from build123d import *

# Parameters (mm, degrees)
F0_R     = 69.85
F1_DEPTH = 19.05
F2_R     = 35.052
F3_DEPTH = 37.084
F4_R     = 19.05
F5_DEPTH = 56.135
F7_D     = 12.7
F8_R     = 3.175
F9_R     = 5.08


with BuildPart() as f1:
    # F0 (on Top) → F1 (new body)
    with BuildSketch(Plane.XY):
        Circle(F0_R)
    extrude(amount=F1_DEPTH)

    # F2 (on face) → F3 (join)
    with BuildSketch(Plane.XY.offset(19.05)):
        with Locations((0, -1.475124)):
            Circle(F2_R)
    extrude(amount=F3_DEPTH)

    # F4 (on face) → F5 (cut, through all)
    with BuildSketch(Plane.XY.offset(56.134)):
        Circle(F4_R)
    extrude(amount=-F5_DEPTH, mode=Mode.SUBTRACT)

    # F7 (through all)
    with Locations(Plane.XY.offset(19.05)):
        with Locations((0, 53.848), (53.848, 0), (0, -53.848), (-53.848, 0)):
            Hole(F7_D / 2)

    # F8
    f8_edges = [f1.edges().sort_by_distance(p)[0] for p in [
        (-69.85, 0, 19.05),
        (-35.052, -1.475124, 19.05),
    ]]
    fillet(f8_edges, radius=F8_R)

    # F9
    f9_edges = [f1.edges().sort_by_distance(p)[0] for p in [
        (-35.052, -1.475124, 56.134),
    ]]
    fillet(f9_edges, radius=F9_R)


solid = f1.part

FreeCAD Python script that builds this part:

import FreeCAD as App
import Part
import Sketcher
Q = App.Units.Quantity


def edges_at(feature, points):
    """Names of the edges that pass closest to the given points."""
    edges = feature.Shape.Edges
    near = lambda p: min(range(len(edges)), key=lambda i: edges[i].distToShape(Part.Vertex(*p))[0])
    return sorted({f"Edge{near(p) + 1}" for p in points})

doc = App.newDocument("Part")
body = doc.addObject("PartDesign::Body", "Body")

# Sketch on XY plane
sketch1 = body.newObject("Sketcher::SketchObject", "Sketch")
sketch1.AttachmentSupport = (doc.getObject("XY_Plane"), [""])
sketch1.MapMode = "FlatFace"
sketch1.addGeometry(Part.Circle(App.Vector(0, 0, 0), App.Vector(0, 0, 1), 69.85), False)
sketch1.addConstraint([
    Sketcher.Constraint("Coincident", 0, 3, -1, 1),
    Sketcher.Constraint("Diameter", 0, Q("5.5 in")),
])
pad1 = body.newObject("PartDesign::Pad", "Pad")
pad1.Profile = sketch1
pad1.Length = Q("0.75 in")

# Sketch on XY plane
sketch2 = body.newObject("Sketcher::SketchObject", "Sketch001")
sketch2.AttachmentSupport = (doc.getObject("XY_Plane"), [""])
sketch2.MapMode = "FlatFace"
sketch2.AttachmentOffset = App.Placement(App.Vector(0, 0, 0.75 * 25.4), App.Rotation())
sketch2.addGeometry(Part.Circle(App.Vector(0, -1.475124, 0), App.Vector(0, 0, 1), 35.052), False)
sketch2.addConstraint([
    Sketcher.Constraint("PointOnObject", 0, 3, -2),
    Sketcher.Constraint("Diameter", 0, Q("2.76 in")),
    Sketcher.Constraint("DistanceY", 0, 3, -1, 1, 1.475124),
])
pad2 = body.newObject("PartDesign::Pad", "Pad001")
pad2.Profile = sketch2
pad2.Length = Q("1.46 in")

# Sketch on XY plane
sketch3 = body.newObject("Sketcher::SketchObject", "Sketch002")
sketch3.AttachmentSupport = (doc.getObject("XY_Plane"), [""])
sketch3.MapMode = "FlatFace"
sketch3.AttachmentOffset = App.Placement(App.Vector(0, 0, 2.21 * 25.4), App.Rotation())
sketch3.addGeometry(Part.Circle(App.Vector(0, 0, 0), App.Vector(0, 0, 1), 19.05), False)
sketch3.addConstraint([
    Sketcher.Constraint("Coincident", 0, 3, -1, 1),
    Sketcher.Constraint("Diameter", 0, Q("1.5 in")),
])
pocket1 = body.newObject("PartDesign::Pocket", "Pocket")
pocket1.Profile = sketch3
pocket1.Type = "ThroughAll"

# Sketch on XY plane
sketch4 = body.newObject("Sketcher::SketchObject", "Sketch003")
sketch4.AttachmentSupport = (doc.getObject("XY_Plane"), [""])
sketch4.MapMode = "FlatFace"
sketch4.AttachmentOffset = App.Placement(App.Vector(0, 0, 0.75 * 25.4), App.Rotation())
sketch4.addGeometry([
    Part.Circle(App.Vector(0, 53.848, 0), App.Vector(0, 0, 1), 6.35),
    Part.Circle(App.Vector(53.848, 0, 0), App.Vector(0, 0, 1), 6.35),
    Part.Circle(App.Vector(0, -53.848, 0), App.Vector(0, 0, 1), 6.35),
    Part.Circle(App.Vector(-53.848, 0, 0), App.Vector(0, 0, 1), 6.35),
], False)
sketch4.addConstraint([
    Sketcher.Constraint("Equal", 0, 1),
    Sketcher.Constraint("Equal", 1, 2),
    Sketcher.Constraint("Equal", 2, 3),
    Sketcher.Constraint("Symmetric", 0, 3, 2, 3, -1, 1),
    Sketcher.Constraint("Symmetric", 1, 3, 3, 3, -1, 1),
    Sketcher.Constraint("PointOnObject", 0, 3, -2),
    Sketcher.Constraint("PointOnObject", 1, 3, -1),
    Sketcher.Constraint("Diameter", 0, Q("0.5 in")),
    Sketcher.Constraint("DistanceY", -1, 1, 0, 3, Q("2.12 in")),
    Sketcher.Constraint("DistanceX", -1, 1, 1, 3, Q("2.12 in")),
])
doc.recompute()
hole = body.newObject("PartDesign::Hole", "Hole")
hole.Profile = sketch4
hole.ThreadType = "None"
hole.Diameter = Q("0.5 in")
hole.DepthType = "ThroughAll"
doc.recompute()

fillet = body.newObject("PartDesign::Fillet", "Fillet")
fillet.Base = (hole, edges_at(hole, [(-69.85, 0, 19.05), (-35.052, -1.475, 19.05)]))
fillet.Radius = Q("0.125 in")
doc.recompute()

fillet2 = body.newObject("PartDesign::Fillet", "Fillet001")
fillet2.Base = (fillet, edges_at(fillet, [(-35.052, -1.475, 56.134)]))
fillet2.Radius = Q("0.2 in")

doc.recompute()
